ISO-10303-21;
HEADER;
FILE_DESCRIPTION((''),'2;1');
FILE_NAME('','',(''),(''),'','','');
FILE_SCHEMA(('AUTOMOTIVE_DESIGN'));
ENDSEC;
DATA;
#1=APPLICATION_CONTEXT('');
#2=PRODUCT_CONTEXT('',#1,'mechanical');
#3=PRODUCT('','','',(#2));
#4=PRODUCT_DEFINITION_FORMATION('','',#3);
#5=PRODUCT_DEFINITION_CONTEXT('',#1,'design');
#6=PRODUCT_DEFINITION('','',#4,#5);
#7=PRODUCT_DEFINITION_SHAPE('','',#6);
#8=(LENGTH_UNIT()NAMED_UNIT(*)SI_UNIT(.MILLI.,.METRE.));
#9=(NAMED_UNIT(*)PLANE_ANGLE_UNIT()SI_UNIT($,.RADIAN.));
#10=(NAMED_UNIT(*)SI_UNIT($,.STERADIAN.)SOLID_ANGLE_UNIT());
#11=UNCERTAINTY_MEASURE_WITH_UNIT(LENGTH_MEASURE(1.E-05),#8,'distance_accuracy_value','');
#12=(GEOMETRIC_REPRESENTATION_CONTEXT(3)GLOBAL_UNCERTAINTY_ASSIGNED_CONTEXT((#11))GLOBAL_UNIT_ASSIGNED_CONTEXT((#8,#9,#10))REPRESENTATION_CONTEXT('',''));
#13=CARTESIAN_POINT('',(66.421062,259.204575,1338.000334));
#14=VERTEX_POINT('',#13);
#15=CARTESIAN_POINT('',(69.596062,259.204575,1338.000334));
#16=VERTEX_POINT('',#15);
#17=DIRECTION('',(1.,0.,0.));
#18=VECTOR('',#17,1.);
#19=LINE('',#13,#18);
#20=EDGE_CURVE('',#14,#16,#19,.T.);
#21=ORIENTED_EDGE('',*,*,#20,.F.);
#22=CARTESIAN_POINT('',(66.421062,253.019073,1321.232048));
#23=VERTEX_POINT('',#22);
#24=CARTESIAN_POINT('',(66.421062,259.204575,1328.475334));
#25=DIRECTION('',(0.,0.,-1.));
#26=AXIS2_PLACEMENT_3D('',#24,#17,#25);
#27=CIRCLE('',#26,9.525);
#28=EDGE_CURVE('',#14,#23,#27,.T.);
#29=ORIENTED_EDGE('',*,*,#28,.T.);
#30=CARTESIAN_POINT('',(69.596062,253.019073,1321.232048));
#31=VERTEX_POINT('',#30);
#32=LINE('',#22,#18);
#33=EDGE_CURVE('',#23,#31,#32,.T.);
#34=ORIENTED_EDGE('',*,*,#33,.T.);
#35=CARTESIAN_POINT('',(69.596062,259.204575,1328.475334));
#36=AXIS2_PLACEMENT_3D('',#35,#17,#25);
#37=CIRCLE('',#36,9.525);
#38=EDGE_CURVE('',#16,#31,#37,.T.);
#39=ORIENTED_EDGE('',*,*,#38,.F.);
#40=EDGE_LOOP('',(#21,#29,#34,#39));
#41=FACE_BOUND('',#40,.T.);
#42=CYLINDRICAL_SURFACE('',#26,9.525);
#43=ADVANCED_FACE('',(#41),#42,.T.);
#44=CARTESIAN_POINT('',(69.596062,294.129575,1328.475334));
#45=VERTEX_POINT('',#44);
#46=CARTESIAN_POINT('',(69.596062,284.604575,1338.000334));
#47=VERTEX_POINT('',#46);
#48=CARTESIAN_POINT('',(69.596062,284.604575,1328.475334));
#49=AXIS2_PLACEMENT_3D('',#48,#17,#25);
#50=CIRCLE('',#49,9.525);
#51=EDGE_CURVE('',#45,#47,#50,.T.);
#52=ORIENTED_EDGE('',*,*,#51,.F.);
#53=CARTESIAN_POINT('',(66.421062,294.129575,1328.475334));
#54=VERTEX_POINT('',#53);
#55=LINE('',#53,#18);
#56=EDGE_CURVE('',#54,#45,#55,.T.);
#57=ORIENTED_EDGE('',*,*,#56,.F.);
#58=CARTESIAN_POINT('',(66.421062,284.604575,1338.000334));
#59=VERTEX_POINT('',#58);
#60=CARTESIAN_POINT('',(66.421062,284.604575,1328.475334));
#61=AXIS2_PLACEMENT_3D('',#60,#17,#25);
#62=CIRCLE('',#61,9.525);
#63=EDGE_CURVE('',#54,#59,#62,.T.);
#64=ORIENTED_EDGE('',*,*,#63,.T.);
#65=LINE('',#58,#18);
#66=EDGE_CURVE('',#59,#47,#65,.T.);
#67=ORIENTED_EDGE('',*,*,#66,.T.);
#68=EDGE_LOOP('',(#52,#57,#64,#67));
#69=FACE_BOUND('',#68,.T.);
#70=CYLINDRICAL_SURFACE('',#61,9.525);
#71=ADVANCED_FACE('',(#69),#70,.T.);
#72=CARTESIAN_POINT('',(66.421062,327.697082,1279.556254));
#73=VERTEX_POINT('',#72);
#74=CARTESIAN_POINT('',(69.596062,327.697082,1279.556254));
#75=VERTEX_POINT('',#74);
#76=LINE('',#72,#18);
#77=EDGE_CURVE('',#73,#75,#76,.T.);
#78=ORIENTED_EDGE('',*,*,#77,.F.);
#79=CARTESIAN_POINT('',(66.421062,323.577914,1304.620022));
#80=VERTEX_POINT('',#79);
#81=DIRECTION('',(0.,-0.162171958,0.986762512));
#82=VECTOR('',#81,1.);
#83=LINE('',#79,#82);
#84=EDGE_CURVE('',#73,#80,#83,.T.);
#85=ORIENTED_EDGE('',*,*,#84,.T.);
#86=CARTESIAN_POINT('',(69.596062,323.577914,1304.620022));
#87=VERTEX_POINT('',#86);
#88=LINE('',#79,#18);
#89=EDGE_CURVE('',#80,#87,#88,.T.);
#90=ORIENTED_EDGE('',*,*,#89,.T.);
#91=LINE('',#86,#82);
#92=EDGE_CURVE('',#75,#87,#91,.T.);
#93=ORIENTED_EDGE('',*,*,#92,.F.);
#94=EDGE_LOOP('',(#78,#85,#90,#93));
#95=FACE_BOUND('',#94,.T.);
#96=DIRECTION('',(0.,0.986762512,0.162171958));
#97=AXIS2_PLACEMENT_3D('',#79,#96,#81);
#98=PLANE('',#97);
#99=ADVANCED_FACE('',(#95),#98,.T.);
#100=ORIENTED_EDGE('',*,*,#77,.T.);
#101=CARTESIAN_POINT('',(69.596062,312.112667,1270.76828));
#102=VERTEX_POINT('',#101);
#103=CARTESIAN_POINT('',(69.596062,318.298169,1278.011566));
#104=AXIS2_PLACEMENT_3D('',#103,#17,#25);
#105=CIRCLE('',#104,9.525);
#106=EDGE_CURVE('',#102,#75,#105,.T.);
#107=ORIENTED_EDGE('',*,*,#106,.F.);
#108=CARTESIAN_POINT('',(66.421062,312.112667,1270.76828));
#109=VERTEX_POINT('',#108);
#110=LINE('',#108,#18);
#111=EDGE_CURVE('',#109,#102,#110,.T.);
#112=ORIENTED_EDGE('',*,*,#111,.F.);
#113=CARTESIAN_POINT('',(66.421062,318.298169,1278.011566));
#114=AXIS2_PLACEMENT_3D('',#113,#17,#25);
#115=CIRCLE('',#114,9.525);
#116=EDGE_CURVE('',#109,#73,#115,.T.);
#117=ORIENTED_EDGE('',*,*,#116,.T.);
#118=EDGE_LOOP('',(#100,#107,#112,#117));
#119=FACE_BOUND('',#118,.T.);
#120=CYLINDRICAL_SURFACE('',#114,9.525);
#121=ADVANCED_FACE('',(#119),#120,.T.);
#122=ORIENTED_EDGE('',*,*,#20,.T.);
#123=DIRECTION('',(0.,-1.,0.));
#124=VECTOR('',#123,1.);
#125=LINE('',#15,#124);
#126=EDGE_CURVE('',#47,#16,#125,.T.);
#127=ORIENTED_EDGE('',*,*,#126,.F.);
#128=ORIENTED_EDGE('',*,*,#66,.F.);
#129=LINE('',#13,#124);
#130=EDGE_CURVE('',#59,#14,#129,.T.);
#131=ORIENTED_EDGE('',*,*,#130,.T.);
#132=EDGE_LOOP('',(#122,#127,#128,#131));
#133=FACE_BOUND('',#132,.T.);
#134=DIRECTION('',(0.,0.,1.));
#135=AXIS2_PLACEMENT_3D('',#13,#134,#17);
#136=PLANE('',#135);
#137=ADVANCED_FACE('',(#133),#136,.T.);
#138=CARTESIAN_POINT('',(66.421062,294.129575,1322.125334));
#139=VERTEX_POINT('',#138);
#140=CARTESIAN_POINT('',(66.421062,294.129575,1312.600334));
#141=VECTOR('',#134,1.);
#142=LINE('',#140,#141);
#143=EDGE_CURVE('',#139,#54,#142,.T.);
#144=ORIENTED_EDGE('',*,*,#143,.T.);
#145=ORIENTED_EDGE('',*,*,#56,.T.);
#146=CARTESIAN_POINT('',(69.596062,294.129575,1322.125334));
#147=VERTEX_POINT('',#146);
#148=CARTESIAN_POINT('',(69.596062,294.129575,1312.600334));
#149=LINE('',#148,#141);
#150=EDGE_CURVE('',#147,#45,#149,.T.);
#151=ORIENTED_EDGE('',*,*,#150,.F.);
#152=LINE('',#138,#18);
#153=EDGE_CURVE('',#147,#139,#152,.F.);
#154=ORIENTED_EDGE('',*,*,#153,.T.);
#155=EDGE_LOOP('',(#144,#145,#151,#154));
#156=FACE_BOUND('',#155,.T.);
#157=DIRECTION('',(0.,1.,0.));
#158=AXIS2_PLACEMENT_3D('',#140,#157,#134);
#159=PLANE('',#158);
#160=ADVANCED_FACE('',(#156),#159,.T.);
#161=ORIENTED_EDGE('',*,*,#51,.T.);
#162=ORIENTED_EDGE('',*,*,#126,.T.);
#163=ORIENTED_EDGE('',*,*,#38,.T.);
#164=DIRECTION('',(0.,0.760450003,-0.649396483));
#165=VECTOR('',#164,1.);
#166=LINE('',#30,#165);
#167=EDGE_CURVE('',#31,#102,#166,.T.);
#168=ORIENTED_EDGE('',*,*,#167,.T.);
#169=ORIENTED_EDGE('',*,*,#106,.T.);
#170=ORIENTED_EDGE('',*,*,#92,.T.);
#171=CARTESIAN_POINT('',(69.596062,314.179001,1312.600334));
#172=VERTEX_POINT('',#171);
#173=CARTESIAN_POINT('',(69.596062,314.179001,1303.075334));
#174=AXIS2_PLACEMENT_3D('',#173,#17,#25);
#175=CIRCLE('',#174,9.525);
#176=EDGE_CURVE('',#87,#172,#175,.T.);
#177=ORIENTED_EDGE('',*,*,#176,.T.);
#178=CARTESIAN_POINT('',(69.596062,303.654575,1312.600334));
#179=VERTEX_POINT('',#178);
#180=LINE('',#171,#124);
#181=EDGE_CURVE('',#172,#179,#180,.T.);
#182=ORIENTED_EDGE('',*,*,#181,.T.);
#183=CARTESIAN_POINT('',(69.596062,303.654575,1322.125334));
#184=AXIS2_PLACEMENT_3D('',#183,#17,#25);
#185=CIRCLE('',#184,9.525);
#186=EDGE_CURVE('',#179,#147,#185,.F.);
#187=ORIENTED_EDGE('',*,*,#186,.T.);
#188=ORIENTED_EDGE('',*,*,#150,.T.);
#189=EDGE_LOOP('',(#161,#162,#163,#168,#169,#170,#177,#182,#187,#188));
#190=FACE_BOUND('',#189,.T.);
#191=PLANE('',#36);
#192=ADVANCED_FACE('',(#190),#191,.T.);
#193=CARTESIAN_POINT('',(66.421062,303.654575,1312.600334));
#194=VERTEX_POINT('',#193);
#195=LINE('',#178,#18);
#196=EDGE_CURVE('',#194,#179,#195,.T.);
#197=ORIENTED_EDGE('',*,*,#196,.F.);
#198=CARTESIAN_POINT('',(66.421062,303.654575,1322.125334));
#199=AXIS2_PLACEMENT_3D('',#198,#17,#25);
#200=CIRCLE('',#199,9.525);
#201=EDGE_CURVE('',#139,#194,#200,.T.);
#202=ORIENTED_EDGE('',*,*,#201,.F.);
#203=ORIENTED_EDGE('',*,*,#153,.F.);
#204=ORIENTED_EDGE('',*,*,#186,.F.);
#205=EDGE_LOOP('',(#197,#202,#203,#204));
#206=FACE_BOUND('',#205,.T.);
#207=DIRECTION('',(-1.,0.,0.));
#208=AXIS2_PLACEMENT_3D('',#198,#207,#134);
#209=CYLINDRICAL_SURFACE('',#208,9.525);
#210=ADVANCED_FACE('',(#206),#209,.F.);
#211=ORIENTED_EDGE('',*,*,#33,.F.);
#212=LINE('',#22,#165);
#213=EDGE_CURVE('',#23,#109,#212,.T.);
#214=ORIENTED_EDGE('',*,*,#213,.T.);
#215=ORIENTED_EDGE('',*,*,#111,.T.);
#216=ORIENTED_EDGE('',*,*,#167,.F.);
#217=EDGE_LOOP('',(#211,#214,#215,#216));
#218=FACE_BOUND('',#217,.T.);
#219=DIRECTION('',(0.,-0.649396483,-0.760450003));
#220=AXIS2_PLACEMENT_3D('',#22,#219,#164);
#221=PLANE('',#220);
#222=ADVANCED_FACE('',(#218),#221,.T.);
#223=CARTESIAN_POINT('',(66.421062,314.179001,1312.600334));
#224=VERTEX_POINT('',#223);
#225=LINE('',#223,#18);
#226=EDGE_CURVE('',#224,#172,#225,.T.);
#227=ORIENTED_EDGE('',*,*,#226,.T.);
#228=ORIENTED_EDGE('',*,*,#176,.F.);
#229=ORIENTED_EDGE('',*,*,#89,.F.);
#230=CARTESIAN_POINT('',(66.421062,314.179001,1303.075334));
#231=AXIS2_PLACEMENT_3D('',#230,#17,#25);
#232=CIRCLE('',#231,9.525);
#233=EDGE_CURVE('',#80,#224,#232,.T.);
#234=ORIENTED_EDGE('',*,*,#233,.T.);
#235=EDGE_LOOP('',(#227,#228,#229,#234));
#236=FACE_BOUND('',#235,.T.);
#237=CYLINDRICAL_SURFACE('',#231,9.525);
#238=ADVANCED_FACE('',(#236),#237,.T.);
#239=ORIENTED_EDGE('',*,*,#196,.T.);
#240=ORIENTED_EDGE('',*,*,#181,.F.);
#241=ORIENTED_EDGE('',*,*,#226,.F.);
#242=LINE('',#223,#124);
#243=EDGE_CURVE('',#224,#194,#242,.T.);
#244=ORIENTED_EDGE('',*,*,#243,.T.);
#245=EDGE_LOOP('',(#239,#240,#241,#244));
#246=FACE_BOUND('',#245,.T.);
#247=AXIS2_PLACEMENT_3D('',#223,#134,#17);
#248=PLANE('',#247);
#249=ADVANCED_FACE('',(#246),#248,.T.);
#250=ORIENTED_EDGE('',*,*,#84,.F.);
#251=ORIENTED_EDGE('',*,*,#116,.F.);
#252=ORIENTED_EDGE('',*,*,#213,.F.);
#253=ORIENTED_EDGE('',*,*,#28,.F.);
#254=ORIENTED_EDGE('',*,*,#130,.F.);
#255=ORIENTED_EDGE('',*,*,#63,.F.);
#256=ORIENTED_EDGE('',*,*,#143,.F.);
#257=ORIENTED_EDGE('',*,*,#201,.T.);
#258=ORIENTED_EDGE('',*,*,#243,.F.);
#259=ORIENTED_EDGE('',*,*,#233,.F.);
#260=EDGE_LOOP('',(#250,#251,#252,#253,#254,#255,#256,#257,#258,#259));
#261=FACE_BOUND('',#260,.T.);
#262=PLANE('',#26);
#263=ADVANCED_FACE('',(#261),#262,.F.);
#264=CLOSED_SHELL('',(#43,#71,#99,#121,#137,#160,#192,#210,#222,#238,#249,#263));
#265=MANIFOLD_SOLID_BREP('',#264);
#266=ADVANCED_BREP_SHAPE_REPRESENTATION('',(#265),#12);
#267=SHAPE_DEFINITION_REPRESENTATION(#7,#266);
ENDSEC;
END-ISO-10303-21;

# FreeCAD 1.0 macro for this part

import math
import FreeCAD as App
import Part
import Sketcher

V = App.Vector
Q = App.Units.Quantity


def edges_at(feature, points):
    """Names of the edges that pass closest to the given points."""
    edges = feature.Shape.Edges
    near = lambda p: min(range(len(edges)), key=lambda i: edges[i].distToShape(Part.Vertex(*p))[0])
    return sorted({f"Edge{near(p) + 1}" for p in points})

doc = App.newDocument("Part")
body = doc.addObject("PartDesign::Body", "Body")

sketch1 = body.newObject("Sketcher::SketchObject", "Sketch")
sketch1.AttachmentSupport = (doc.getObject("YZ_Plane"), [""])
sketch1.MapMode = "FlatFace"
sketch1.AttachmentOffset = App.Placement(V(0, 0, 66.421062), App.Rotation())
sketch1.addGeometry([
    Part.LineSegment(V(253.019073, 1321.232048, 0), V(312.112667, 1270.76828, 0)),
    Part.ArcOfCircle(Part.Circle(V(318.298169, 1278.011566, 0), V(0, 0, 1), 9.525), math.radians(-130.496115), math.radians(9.332987)),
    Part.LineSegment(V(327.697082, 1279.556254, 0), V(323.577914, 1304.620022, 0)),
    Part.ArcOfCircle(Part.Circle(V(314.179001, 1303.075334, 0), V(0, 0, 1), 9.525), math.radians(9.332987), math.radians(90)),
    Part.LineSegment(V(314.179001, 1312.600334, 0), V(294.129575, 1312.600334, 0)),
    Part.LineSegment(V(294.129575, 1312.600334, 0), V(294.129575, 1328.475334, 0)),
    Part.ArcOfCircle(Part.Circle(V(284.604575, 1328.475334, 0), V(0, 0, 1), 9.525), math.radians(0), math.radians(90)),
    Part.LineSegment(V(284.604575, 1338.000334, 0), V(259.204575, 1338.000334, 0)),
    Part.ArcOfCircle(Part.Circle(V(259.204575, 1328.475334, 0), V(0, 0, 1), 9.525), math.radians(90), math.radians(229.503885)),
], False)
sketch1.addConstraint([
    Sketcher.Constraint("Tangent", 0, 2, 1, 1),
    Sketcher.Constraint("Tangent", 1, 2, 2, 1),
    Sketcher.Constraint("Tangent", 2, 2, 3, 1),
    Sketcher.Constraint("Tangent", 3, 2, 4, 1),
    Sketcher.Constraint("Coincident", 4, 2, 5, 1),
    Sketcher.Constraint("Tangent", 5, 2, 6, 1),
    Sketcher.Constraint("Tangent", 6, 2, 7, 1),
    Sketcher.Constraint("Tangent", 7, 2, 8, 1),
    Sketcher.Constraint("Tangent", 8, 2, 0, 1),
    Sketcher.Constraint("Horizontal", 4),
    Sketcher.Constraint("Vertical", 5),
    Sketcher.Constraint("Horizontal", 7),
    Sketcher.Constraint("Equal", 1, 3),
    Sketcher.Constraint("Equal", 3, 6),
    Sketcher.Constraint("Equal", 6, 8),
    Sketcher.Constraint("DistanceX", 7, 2, 7, 1, Q("1 in")),
    Sketcher.Constraint("Distance", 2, Q("1 in")),
    Sketcher.Constraint("Radius", 1, Q("0.375 in")),
    Sketcher.Constraint("DistanceY", 3, 3, 6, 3, Q("1 in")),
    Sketcher.Constraint("DistanceX", -1, 1, 3, 3, Q("314.179001 mm")),
    Sketcher.Constraint("DistanceX", 0, 2, 1, 3, Q("6.185502 mm")),
    Sketcher.Constraint("DistanceX", 4, 2, 4, 1, Q("20.049427 mm")),
    Sketcher.Constraint("DistanceY", -1, 1, 0, 2, Q("1270.76828 mm")),
])
pad1 = body.newObject("PartDesign::Pad", "Pad")
pad1.Profile = sketch1
pad1.Length = Q("0.125 in")
doc.recompute()

fillet = body.newObject("PartDesign::Fillet", "Fillet")
fillet.Base = (pad1, edges_at(pad1, [(68.009, 294.13, 1312.6)]))
fillet.Radius = Q("0.375 in")

doc.recompute()
